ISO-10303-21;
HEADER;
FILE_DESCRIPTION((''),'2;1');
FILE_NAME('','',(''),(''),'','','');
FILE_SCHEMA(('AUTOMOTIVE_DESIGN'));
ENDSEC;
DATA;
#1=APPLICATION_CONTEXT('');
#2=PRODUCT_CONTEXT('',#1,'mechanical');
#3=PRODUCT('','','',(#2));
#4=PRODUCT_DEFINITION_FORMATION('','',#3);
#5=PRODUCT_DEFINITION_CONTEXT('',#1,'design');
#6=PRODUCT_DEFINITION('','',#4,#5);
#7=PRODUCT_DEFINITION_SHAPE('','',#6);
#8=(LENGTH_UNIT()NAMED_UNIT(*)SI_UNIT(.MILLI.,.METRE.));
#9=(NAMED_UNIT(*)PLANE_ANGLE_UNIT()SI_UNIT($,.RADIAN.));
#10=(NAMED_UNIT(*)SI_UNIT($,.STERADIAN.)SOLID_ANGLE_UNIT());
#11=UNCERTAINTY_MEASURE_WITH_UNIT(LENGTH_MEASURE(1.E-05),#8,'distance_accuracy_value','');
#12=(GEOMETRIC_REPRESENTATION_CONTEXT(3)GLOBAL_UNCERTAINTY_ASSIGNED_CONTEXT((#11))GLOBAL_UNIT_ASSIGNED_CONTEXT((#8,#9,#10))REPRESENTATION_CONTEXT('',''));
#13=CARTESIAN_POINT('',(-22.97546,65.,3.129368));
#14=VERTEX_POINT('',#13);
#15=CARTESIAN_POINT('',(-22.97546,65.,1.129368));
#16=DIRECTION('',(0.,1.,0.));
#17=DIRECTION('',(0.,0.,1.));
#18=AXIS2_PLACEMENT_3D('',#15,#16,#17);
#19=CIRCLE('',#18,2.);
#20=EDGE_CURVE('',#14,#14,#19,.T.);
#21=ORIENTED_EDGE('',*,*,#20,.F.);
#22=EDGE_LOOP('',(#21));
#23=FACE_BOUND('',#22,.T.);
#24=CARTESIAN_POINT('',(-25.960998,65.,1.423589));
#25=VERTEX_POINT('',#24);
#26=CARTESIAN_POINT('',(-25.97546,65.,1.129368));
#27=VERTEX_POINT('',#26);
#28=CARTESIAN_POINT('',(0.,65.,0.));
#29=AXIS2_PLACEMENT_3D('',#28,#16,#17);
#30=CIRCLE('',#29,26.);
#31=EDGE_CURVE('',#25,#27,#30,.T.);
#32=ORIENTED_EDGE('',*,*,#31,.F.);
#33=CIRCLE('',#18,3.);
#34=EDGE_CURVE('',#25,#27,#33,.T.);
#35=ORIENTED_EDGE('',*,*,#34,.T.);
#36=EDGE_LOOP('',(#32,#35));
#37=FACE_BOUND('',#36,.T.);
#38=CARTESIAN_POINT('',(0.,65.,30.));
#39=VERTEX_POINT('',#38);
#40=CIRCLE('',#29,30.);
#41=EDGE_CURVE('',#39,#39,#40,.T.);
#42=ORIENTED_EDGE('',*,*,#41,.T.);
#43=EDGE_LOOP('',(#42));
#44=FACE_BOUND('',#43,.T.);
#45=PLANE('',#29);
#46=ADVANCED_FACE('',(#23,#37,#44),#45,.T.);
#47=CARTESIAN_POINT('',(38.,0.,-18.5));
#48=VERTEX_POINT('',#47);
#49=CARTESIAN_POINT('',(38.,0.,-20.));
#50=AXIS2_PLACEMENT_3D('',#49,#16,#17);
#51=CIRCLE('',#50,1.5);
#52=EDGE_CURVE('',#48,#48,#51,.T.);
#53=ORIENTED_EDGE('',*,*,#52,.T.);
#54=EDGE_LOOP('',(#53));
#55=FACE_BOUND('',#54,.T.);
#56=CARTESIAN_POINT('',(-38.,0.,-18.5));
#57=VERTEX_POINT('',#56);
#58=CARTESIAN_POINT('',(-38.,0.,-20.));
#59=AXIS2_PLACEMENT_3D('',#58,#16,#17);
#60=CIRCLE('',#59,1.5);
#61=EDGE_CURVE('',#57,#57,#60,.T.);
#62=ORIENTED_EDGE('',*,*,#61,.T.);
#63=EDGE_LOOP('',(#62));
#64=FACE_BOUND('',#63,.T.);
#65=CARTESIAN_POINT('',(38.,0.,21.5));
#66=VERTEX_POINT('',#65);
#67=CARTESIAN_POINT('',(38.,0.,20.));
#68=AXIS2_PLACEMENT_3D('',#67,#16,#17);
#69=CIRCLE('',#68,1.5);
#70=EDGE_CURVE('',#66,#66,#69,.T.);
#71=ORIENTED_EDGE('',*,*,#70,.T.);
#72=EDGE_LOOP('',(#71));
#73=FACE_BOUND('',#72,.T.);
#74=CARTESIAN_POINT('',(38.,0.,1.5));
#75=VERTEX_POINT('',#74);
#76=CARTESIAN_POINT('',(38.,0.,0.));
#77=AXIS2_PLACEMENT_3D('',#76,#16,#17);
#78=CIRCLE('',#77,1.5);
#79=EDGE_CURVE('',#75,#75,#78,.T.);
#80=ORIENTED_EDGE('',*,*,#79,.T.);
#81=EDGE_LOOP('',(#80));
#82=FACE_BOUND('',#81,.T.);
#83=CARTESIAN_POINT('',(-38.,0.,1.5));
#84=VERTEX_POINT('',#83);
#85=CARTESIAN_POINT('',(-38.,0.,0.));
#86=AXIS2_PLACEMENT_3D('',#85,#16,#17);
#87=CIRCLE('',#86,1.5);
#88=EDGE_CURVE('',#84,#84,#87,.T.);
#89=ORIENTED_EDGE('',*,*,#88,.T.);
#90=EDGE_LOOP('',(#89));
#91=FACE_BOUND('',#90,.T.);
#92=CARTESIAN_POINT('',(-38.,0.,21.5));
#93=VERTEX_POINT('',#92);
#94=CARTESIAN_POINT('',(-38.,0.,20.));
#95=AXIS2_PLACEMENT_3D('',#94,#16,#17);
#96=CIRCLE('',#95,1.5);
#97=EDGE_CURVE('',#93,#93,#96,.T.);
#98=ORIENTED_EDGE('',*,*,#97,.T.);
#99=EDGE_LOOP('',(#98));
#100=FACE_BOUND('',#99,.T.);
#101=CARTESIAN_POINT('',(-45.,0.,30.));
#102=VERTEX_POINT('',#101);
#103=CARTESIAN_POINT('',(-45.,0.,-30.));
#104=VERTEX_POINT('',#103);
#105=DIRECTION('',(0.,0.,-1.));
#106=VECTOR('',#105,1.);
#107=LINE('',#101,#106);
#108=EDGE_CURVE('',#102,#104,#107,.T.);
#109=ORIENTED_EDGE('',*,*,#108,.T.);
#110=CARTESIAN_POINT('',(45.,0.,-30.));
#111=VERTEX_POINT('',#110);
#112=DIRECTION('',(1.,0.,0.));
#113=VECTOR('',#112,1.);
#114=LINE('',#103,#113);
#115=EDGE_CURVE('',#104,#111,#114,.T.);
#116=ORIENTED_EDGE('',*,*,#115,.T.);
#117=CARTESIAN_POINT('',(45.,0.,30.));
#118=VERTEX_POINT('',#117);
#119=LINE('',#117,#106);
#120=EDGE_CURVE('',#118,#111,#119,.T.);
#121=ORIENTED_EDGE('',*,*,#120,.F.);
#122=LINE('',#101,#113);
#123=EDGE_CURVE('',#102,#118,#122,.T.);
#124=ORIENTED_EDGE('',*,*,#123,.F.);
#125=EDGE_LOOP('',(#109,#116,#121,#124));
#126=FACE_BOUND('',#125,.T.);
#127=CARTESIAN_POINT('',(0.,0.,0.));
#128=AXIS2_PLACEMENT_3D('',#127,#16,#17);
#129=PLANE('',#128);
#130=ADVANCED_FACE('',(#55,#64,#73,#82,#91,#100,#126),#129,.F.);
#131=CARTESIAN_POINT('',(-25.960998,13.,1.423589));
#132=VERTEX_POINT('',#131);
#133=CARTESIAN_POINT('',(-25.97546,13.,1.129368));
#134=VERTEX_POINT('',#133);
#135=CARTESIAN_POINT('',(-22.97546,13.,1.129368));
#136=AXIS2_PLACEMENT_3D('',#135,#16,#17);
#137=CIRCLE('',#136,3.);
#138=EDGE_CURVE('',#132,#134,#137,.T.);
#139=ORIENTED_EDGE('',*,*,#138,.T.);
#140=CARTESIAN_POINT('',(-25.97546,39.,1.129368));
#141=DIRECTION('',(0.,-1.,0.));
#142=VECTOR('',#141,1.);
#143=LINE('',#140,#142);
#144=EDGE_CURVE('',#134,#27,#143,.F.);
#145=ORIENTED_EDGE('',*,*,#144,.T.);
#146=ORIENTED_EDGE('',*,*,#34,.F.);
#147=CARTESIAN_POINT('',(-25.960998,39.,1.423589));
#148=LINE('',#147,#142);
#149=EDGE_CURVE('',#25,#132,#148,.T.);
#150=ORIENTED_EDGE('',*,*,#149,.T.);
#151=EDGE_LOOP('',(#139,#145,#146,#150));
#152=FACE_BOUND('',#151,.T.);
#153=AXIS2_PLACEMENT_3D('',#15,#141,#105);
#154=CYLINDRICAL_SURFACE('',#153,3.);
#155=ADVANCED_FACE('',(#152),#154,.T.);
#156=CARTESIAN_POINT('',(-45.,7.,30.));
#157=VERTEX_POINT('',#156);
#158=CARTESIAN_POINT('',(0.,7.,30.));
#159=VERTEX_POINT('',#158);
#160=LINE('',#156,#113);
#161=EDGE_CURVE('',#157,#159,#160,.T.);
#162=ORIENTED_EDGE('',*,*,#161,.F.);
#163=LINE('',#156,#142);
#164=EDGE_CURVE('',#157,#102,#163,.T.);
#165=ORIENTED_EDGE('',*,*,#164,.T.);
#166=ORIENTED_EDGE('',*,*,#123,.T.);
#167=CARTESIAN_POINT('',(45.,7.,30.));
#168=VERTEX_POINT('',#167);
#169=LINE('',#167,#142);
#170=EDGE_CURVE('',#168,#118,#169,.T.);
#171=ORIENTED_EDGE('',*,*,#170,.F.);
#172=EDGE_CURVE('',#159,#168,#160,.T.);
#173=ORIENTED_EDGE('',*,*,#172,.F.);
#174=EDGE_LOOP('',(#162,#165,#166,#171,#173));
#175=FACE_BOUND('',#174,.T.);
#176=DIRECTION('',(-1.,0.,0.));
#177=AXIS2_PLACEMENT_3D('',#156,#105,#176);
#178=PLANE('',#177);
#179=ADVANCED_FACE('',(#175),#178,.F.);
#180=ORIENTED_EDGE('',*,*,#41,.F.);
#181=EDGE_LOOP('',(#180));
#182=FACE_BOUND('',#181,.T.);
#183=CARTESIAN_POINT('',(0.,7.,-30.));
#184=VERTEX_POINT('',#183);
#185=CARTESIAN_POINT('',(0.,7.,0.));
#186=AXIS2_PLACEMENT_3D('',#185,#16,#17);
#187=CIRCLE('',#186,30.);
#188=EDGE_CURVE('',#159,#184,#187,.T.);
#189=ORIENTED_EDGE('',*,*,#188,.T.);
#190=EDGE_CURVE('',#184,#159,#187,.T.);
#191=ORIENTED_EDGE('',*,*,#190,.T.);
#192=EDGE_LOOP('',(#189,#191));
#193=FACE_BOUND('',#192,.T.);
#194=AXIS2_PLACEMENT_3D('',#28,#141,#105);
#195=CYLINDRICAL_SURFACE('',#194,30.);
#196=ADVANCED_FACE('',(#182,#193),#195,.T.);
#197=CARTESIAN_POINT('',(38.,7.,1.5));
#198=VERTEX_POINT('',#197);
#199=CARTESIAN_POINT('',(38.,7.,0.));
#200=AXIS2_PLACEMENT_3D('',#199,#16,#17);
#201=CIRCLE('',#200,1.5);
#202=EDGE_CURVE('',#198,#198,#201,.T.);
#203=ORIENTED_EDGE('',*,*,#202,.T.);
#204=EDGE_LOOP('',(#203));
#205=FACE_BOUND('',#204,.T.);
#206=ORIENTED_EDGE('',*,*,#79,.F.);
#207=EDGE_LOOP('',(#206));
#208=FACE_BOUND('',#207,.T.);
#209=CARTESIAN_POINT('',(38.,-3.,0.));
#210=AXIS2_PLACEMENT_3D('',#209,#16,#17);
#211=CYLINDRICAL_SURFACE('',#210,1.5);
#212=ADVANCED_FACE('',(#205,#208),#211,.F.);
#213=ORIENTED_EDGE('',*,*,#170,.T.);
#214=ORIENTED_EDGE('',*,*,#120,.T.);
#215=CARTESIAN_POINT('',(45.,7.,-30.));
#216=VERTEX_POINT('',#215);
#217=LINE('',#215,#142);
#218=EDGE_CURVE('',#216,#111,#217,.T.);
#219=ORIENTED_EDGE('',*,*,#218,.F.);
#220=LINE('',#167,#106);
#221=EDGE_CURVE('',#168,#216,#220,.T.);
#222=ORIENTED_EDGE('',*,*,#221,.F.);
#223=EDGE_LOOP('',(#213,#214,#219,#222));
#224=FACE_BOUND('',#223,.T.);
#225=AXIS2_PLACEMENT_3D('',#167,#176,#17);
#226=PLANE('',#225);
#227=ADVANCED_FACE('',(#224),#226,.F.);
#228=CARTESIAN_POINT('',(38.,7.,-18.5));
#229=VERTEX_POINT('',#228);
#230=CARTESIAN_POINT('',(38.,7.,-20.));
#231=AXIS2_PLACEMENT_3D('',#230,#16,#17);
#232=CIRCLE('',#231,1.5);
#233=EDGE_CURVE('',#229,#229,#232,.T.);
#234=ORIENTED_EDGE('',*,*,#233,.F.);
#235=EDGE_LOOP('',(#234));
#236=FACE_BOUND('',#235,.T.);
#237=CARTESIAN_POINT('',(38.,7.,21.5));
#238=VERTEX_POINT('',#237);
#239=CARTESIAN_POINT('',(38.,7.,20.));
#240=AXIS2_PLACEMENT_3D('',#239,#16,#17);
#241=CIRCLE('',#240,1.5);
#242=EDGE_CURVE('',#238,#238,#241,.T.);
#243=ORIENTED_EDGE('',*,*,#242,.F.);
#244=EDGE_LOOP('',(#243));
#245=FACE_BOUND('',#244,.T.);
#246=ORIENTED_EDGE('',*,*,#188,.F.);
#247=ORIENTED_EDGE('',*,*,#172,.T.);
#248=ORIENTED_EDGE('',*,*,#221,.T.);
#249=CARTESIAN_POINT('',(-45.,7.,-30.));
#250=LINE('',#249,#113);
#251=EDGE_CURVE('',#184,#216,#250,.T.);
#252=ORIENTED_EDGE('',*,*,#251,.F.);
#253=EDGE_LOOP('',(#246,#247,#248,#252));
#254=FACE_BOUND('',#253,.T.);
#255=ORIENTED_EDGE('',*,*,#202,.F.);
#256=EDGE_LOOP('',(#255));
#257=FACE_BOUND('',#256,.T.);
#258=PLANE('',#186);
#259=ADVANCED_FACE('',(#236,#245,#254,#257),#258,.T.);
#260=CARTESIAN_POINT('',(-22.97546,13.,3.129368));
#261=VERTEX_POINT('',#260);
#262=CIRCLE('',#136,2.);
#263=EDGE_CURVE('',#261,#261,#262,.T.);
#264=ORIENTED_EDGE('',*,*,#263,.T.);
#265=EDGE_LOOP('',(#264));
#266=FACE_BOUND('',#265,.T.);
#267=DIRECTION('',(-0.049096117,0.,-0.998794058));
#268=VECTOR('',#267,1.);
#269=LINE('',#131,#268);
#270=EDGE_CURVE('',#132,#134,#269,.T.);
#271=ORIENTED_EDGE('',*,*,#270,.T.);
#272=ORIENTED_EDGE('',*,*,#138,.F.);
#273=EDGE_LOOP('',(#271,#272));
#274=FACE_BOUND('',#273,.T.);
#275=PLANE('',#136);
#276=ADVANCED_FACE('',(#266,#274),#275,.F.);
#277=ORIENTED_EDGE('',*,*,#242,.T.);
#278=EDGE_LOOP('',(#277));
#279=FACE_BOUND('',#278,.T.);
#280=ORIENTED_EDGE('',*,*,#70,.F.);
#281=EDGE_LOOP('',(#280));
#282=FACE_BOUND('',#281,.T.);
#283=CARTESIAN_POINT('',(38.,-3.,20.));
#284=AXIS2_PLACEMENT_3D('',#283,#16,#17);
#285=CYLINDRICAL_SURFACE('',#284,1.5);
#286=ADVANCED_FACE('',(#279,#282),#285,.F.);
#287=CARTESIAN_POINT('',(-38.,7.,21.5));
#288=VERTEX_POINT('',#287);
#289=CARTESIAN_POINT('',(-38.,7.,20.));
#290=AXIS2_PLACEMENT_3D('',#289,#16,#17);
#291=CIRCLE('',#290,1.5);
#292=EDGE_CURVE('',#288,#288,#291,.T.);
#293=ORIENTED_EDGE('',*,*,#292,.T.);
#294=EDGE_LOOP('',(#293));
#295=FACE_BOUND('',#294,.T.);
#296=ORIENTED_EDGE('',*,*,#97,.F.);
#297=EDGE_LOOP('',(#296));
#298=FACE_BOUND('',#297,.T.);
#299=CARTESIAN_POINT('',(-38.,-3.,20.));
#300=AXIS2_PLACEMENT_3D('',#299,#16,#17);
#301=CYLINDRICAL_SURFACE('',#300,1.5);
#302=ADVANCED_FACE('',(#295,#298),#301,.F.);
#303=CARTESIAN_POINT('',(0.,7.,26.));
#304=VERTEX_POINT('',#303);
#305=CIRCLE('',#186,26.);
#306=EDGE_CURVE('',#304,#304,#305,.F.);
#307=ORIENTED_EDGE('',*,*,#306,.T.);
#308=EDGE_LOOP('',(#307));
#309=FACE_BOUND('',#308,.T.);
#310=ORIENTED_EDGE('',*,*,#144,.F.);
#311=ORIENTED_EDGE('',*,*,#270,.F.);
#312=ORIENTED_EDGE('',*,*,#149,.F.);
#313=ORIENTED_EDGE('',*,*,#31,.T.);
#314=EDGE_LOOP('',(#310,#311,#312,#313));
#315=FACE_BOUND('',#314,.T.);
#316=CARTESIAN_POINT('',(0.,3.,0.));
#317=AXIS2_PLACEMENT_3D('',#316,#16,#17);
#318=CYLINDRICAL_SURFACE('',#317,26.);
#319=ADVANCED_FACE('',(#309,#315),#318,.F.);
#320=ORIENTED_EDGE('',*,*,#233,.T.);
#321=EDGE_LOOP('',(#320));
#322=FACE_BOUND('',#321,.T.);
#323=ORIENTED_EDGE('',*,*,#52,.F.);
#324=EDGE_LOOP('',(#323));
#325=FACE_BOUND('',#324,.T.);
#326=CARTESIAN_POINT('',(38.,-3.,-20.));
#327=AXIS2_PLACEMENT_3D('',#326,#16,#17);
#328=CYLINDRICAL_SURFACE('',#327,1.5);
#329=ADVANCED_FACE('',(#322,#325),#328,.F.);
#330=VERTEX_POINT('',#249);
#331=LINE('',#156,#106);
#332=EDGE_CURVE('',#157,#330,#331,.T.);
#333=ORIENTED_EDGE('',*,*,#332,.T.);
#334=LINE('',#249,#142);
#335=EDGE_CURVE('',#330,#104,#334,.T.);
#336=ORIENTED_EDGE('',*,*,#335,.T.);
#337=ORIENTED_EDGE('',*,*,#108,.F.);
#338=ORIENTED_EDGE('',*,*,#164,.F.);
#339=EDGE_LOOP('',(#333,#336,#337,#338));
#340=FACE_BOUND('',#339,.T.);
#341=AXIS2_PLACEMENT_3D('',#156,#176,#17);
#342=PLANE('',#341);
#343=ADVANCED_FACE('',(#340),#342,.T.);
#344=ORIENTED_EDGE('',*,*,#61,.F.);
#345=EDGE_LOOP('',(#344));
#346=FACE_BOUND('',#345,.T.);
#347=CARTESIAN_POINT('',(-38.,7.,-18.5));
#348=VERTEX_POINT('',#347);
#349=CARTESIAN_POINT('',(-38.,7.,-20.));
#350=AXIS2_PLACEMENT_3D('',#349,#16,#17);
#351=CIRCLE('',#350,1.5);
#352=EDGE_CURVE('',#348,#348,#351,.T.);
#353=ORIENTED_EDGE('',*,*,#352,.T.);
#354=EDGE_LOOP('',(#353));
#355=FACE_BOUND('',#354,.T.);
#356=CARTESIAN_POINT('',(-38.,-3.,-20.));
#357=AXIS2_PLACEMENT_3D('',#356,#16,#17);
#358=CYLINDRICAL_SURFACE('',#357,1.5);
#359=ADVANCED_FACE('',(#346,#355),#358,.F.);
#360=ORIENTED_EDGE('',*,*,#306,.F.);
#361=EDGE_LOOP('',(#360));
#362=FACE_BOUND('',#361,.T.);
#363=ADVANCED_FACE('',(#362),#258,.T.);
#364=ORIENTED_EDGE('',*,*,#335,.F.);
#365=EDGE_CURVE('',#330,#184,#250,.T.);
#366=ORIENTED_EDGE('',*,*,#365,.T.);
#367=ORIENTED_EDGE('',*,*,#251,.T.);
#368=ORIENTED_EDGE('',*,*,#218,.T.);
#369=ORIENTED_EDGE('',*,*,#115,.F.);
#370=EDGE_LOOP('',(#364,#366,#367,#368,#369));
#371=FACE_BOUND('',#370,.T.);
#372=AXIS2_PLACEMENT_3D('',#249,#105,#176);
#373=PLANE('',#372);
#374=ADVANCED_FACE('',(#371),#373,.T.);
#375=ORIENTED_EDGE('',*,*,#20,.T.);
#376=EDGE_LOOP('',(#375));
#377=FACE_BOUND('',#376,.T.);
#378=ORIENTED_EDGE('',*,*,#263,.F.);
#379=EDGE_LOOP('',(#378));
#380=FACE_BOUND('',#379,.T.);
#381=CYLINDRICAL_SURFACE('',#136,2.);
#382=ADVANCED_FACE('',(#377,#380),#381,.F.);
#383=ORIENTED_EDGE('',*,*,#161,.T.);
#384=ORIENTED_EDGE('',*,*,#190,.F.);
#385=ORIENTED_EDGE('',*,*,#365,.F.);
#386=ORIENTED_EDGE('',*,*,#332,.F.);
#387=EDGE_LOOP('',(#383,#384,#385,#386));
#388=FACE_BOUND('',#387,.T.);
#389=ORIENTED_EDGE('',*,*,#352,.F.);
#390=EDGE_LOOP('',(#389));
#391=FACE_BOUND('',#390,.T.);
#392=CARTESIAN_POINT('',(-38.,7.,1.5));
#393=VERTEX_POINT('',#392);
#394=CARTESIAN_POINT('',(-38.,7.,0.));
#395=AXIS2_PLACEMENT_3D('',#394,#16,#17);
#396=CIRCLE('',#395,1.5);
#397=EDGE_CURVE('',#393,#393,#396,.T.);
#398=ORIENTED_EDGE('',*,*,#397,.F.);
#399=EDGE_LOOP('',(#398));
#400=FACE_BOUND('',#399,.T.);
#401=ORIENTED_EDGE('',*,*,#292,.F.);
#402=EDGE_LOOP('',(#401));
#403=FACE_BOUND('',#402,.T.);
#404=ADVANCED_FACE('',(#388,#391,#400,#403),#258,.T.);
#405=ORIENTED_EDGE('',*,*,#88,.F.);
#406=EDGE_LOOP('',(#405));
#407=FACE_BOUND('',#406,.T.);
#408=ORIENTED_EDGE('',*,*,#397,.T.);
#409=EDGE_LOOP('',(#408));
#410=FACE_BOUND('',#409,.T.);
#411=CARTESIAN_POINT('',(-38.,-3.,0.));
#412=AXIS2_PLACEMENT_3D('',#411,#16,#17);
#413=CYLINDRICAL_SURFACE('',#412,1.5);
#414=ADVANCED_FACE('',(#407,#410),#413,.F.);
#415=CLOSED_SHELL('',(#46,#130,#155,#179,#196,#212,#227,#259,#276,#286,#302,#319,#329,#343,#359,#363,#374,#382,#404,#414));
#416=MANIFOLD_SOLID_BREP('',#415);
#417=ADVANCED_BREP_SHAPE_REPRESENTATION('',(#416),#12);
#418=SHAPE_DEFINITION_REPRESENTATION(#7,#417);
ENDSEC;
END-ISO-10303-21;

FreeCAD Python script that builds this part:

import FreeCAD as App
import Part
import Sketcher

V = App.Vector


def add_polygon(sketch, points):
    """Adds a closed chain of lines whose ends are joined by coincident constraints."""
    first, n = sketch.GeometryCount, len(points)
    for a, b in zip(points, points[1:] + points[:1]):
        sketch.addGeometry(Part.LineSegment(App.Vector(*a, 0), App.Vector(*b, 0)), False)
    for i in range(n):
        sketch.addConstraint(Sketcher.Constraint("Coincident", first + i, 2, first + (i + 1) % n, 1))

doc = App.newDocument("Part")
body = doc.addObject("PartDesign::Body", "Body")

sketch1 = doc.addObject("Sketcher::SketchObject", "Sketch")
body.addObject(sketch1)
sketch1.AttachmentSupport = (doc.XZ_Plane, [""])
sketch1.MapMode = "FlatFace"
sketch1.addGeometry(Part.Circle(V(0, 0, 0), V(0, 0, 1), 30), False)
sketch1.addConstraint([
    Sketcher.Constraint("Coincident", 0, 3, -1, 1),
    Sketcher.Constraint("Diameter", 0, 60.0),
])
pad1 = doc.addObject("PartDesign::Pad", "Pad")
body.addObject(pad1)
pad1.Profile = sketch1
pad1.Length = 65
pad1.Reversed = True

sketch2 = doc.addObject("Sketcher::SketchObject", "Sketch001")
body.addObject(sketch2)
sketch2.AttachmentSupport = (doc.XZ_Plane, [""])
sketch2.MapMode = "FlatFace"
sketch2.AttachmentOffset = App.Placement(V(0, 0, -65), App.Rotation())
sketch2.addGeometry(Part.Circle(V(0, 0, 0), V(0, 0, 1), 26), False)
sketch2.addConstraint([
    Sketcher.Constraint("Coincident", 0, 3, -1, 1),
    Sketcher.Constraint("Diameter", 0, 52.0),
])
pocket1 = doc.addObject("PartDesign::Pocket", "Pocket")
body.addObject(pocket1)
pocket1.Profile = sketch2
pocket1.Length = 62
pocket1.Reversed = True

sketch3 = doc.addObject("Sketcher::SketchObject", "Sketch002")
body.addObject(sketch3)
sketch3.AttachmentSupport = (doc.XZ_Plane, [""])
sketch3.MapMode = "FlatFace"
sketch3.AttachmentOffset = App.Placement(V(0, 0, -13), App.Rotation())
sketch3.addGeometry(Part.Circle(V(-22.97546, 1.129368, 0), V(0, 0, 1), 3), False)
sketch3.addConstraint([
    Sketcher.Constraint("Diameter", 0, 6.0),
    Sketcher.Constraint("DistanceX", 0, 3, -1, 1, 22.97546),
    Sketcher.Constraint("DistanceY", -1, 1, 0, 3, 1.129368),
])
pad2 = doc.addObject("PartDesign::Pad", "Pad001")
body.addObject(pad2)
pad2.Profile = sketch3
pad2.Length = 52
pad2.Reversed = True

sketch4 = doc.addObject("Sketcher::SketchObject", "Sketch003")
body.addObject(sketch4)
sketch4.AttachmentSupport = (doc.XZ_Plane, [""])
sketch4.MapMode = "FlatFace"
sketch4.AttachmentOffset = App.Placement(V(0, 0, -65), App.Rotation())
sketch4.addGeometry(Part.Circle(V(-22.97546, 1.129368, 0), V(0, 0, 1), 2), False)
sketch4.addConstraint([
    Sketcher.Constraint("Diameter", 0, 4.0),
    Sketcher.Constraint("DistanceX", 0, 3, -1, 1, 22.97546),
    Sketcher.Constraint("DistanceY", -1, 1, 0, 3, 1.129368),
])
pocket2 = doc.addObject("PartDesign::Pocket", "Pocket001")
body.addObject(pocket2)
pocket2.Profile = sketch4
pocket2.Length = 52
pocket2.Reversed = True

sketch5 = doc.addObject("Sketcher::SketchObject", "Sketch004")
body.addObject(sketch5)
sketch5.AttachmentSupport = (doc.XZ_Plane, [""])
sketch5.MapMode = "FlatFace"
add_polygon(sketch5, [(-45, 30), (-45, -30), (45, -30), (45, 30)])
sketch5.addConstraint([
    Sketcher.Constraint("Vertical", 0),
    Sketcher.Constraint("Horizontal", 1),
    Sketcher.Constraint("Vertical", 2),
    Sketcher.Constraint("Horizontal", 3),
    Sketcher.Constraint("Symmetric", 0, 2, 2, 2, -1, 1),
    Sketcher.Constraint("DistanceX", 1, 1, 1, 2, 90.0),
    Sketcher.Constraint("DistanceY", 0, 2, 0, 1, 60.0),
])
pad3 = doc.addObject("PartDesign::Pad", "Pad002")
body.addObject(pad3)
pad3.Profile = sketch5
pad3.Length = 7
pad3.Reversed = True

sketch6 = doc.addObject("Sketcher::SketchObject", "Sketch005")
body.addObject(sketch6)
sketch6.AttachmentSupport = (doc.XZ_Plane, [""])
sketch6.MapMode = "FlatFace"
sketch6.AttachmentOffset = App.Placement(V(0, 0, -7), App.Rotation())
sketch6.addGeometry([
    Part.Circle(V(38, 0, 0), V(0, 0, 1), 1.5),
    Part.Circle(V(-38, 0, 0), V(0, 0, 1), 1.5),
], False)
sketch6.addConstraint([
    Sketcher.Constraint("Equal", 0, 1),
    Sketcher.Constraint("Symmetric", 0, 3, 1, 3, -1, 1),
    Sketcher.Constraint("PointOnObject", 0, 3, -1),
    Sketcher.Constraint("Diameter", 0, 3.0),
    Sketcher.Constraint("DistanceX", -1, 1, 0, 3, 38.0),
])
pocket3 = doc.addObject("PartDesign::Pocket", "Pocket002")
body.addObject(pocket3)
pocket3.Profile = sketch6
pocket3.Length = 10
pocket3.Reversed = True

sketch7 = doc.addObject("Sketcher::SketchObject", "Sketch006")
body.addObject(sketch7)
sketch7.AttachmentSupport = (doc.XZ_Plane, [""])
sketch7.MapMode = "FlatFace"
sketch7.AttachmentOffset = App.Placement(V(0, 0, -7), App.Rotation())
sketch7.addGeometry([
    Part.Circle(V(-38, -20, 0), V(0, 0, 1), 1.5),
    Part.Circle(V(-38, 20, 0), V(0, 0, 1), 1.5),
    Part.Circle(V(38, 20, 0), V(0, 0, 1), 1.5),
    Part.Circle(V(38, -20, 0), V(0, 0, 1), 1.5),
], False)
sketch7.addConstraint([
    Sketcher.Constraint("Equal", 0, 1),
    Sketcher.Constraint("Equal", 1, 2),
    Sketcher.Constraint("Equal", 2, 3),
    Sketcher.Constraint("Symmetric", 0, 3, 2, 3, -1, 1),
    Sketcher.Constraint("Symmetric", 1, 3, 3, 3, -1, 1),
    Sketcher.Constraint("Symmetric", 1, 3, 2, 3, -2),
    Sketcher.Constraint("Diameter", 0, 3.0),
    Sketcher.Constraint("DistanceX", 0, 3, -1, 1, 38.0),
    Sketcher.Constraint("DistanceY", 0, 3, -1, 1, 20.0),
])
pocket4 = doc.addObject("PartDesign::Pocket", "Pocket003")
body.addObject(pocket4)
pocket4.Profile = sketch7
pocket4.Length = 10
pocket4.Reversed = True

doc.recompute()
